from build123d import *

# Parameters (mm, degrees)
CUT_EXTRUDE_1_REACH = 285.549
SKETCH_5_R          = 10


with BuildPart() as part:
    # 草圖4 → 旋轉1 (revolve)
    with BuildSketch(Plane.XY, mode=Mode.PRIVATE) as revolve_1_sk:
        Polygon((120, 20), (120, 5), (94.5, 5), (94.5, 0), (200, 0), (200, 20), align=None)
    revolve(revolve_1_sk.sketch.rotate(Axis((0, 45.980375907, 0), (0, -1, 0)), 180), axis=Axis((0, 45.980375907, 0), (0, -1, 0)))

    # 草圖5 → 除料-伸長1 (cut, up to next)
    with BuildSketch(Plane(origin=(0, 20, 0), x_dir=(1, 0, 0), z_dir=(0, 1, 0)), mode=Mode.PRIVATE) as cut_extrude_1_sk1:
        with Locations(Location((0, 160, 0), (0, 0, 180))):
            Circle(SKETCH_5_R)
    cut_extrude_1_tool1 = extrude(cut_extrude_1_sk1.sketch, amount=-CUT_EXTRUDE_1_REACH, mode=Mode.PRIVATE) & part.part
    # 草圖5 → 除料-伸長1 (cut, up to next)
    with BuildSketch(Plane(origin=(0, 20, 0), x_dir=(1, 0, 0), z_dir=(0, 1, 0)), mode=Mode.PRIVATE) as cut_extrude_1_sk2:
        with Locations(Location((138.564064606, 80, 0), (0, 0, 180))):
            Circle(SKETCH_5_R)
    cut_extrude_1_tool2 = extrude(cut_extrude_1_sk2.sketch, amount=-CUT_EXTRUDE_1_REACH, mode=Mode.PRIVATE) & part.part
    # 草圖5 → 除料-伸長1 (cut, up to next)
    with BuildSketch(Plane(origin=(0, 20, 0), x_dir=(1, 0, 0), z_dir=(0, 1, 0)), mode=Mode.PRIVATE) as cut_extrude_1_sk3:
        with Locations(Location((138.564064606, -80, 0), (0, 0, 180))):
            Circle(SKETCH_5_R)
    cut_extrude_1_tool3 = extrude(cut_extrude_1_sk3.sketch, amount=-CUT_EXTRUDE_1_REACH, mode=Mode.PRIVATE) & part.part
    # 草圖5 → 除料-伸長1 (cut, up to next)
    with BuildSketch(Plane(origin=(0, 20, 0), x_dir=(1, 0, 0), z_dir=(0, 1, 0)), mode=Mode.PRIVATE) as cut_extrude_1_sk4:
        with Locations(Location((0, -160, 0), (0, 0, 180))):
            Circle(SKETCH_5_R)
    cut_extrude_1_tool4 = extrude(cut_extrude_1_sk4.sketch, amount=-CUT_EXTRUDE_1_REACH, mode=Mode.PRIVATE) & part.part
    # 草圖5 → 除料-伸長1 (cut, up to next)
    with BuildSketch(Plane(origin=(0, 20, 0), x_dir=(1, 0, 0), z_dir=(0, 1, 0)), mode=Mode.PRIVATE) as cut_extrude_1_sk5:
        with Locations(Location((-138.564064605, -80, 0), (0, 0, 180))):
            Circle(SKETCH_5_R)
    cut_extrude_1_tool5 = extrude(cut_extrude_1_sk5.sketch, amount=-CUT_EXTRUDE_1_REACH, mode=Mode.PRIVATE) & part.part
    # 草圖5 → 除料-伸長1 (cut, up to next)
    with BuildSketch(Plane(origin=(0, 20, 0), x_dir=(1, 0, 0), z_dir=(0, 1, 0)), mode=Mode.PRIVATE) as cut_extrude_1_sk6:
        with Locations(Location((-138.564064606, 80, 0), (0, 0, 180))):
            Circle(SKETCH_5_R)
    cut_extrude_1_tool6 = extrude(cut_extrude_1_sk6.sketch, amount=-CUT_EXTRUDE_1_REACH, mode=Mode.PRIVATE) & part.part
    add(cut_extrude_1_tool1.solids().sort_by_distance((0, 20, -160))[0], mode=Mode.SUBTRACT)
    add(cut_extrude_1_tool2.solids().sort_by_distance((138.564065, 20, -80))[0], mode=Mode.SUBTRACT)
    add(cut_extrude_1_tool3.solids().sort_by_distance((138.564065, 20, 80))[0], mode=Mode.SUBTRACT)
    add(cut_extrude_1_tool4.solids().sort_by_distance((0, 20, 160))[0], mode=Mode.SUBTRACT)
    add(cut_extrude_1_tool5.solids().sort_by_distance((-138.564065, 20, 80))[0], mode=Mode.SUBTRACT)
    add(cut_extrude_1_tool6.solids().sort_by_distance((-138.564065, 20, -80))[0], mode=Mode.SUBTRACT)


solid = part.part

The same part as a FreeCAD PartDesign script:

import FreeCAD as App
import Part
import Sketcher


def add_polygon(sketch, points):
    """Adds a closed chain of lines whose ends are joined by coincident constraints."""
    first, n = sketch.GeometryCount, len(points)
    for a, b in zip(points, points[1:] + points[:1]):
        sketch.addGeometry(Part.LineSegment(App.Vector(*a, 0), App.Vector(*b, 0)), False)
    for i in range(n):
        sketch.addConstraint(Sketcher.Constraint("Coincident", first + i, 2, first + (i + 1) % n, 1))

doc = App.newDocument("Part")
params = doc.addObject("Spreadsheet::Sheet", "Params")
for row, (alias, value) in enumerate([
    ("sketch1_width", "80 mm"),
    ("sketch1_height", "15 mm"),
    ("sketch1_height2", "5 mm"),
    ("sketch1_width2", "25.5 mm"),
    ("revolution_angle", "360 deg"),
    ("sketch2_diameter", "20 mm"),
    ("sketch3_diameter", "20 mm"),
    ("sketch4_diameter", "20 mm"),
    ("sketch5_diameter", "20 mm"),
    ("sketch6_diameter", "20 mm"),
    ("sketch7_diameter", "20 mm"),
], start=1):
    params.set(f"A{row}", alias)
    params.set(f"B{row}", "=" + value)
    params.setAlias(f"B{row}", alias)

body = doc.addObject("PartDesign::Body", "Body")

# Sketch on XY plane
sketch1 = body.newObject("Sketcher::SketchObject", "Sketch")
sketch1.AttachmentSupport = (doc.getObject("XY_Plane"), [""])
sketch1.MapMode = "FlatFace"
add_polygon(sketch1, [(120, 20), (120, 5), (94.5, 5), (94.5, 0), (200, 0), (200, 20)])  # lines 0-5
sketch1.addConstraint(Sketcher.Constraint("Vertical", 0))
sketch1.addConstraint(Sketcher.Constraint("Horizontal", 1))
sketch1.addConstraint(Sketcher.Constraint("Vertical", 2))
sketch1.addConstraint(Sketcher.Constraint("Horizontal", 3))
sketch1.addConstraint(Sketcher.Constraint("Vertical", 4))
sketch1.addConstraint(Sketcher.Constraint("Horizontal", 5))
sketch1.addConstraint(Sketcher.Constraint("PointOnObject", 2, 2, -1))
sketch1.addConstraint(Sketcher.Constraint("DistanceX", 5, 2, 5, 1, 80.0))
sketch1.addConstraint(Sketcher.Constraint("DistanceY", 0, 2, 0, 1, 15.0))
sketch1.addConstraint(Sketcher.Constraint("DistanceY", 2, 2, 2, 1, 5.0))
sketch1.addConstraint(Sketcher.Constraint("DistanceX", 1, 2, 1, 1, 25.5))
sketch1.addConstraint(Sketcher.Constraint("DistanceX", -1, 1, 0, 2, 120.0))
sketch1.setExpression("Constraints[13]", "Params.sketch1_width")
sketch1.setExpression("Constraints[14]", "Params.sketch1_height")
sketch1.setExpression("Constraints[15]", "Params.sketch1_height2")
sketch1.setExpression("Constraints[16]", "Params.sketch1_width2")
revolution = body.newObject("PartDesign::Revolution", "Revolution")
revolution.Profile = sketch1
revolution.ReferenceAxis = (sketch1, ["V_Axis"])
revolution.setExpression("Angle", "Params.revolution_angle")

# Sketch on XZ plane
sketch2 = body.newObject("Sketcher::SketchObject", "Sketch001")
sketch2.AttachmentSupport = (doc.getObject("XZ_Plane"), [""])
sketch2.MapMode = "FlatFace"
sketch2.AttachmentOffset = App.Placement(App.Vector(0, 0, -20), App.Rotation())
sketch2.addGeometry(Part.Circle(App.Vector(0, -160, 0), App.Vector(0, 0, 1), 10), False)
sketch2.addConstraint(Sketcher.Constraint("PointOnObject", 0, 3, -2))
sketch2.addConstraint(Sketcher.Constraint("Diameter", 0, 20.0))
sketch2.addConstraint(Sketcher.Constraint("DistanceY", 0, 3, -1, 1, 160.0))
sketch2.setExpression("Constraints[1]", "Params.sketch2_diameter")
pocket1 = body.newObject("PartDesign::Pocket", "Pocket")
pocket1.Profile = sketch2
pocket1.Type = "UpToFirst"
pocket1.Reversed = True

# Sketch on XZ plane
sketch3 = body.newObject("Sketcher::SketchObject", "Sketch002")
sketch3.AttachmentSupport = (doc.getObject("XZ_Plane"), [""])
sketch3.MapMode = "FlatFace"
sketch3.AttachmentOffset = App.Placement(App.Vector(0, 0, -20), App.Rotation())
sketch3.addGeometry(Part.Circle(App.Vector(138.564065, -80, 0), App.Vector(0, 0, 1), 10), False)
sketch3.addConstraint(Sketcher.Constraint("Diameter", 0, 20.0))
sketch3.addConstraint(Sketcher.Constraint("DistanceY", 0, 3, -1, 1, 80.0))
sketch3.addConstraint(Sketcher.Constraint("DistanceX", -1, 1, 0, 3, 138.564065))
sketch3.setExpression("Constraints[0]", "Params.sketch3_diameter")
pocket2 = body.newObject("PartDesign::Pocket", "Pocket001")
pocket2.Profile = sketch3
pocket2.Type = "UpToFirst"
pocket2.Reversed = True

# Sketch on XZ plane
sketch4 = body.newObject("Sketcher::SketchObject", "Sketch003")
sketch4.AttachmentSupport = (doc.getObject("XZ_Plane"), [""])
sketch4.MapMode = "FlatFace"
sketch4.AttachmentOffset = App.Placement(App.Vector(0, 0, -20), App.Rotation())
sketch4.addGeometry(Part.Circle(App.Vector(138.564065, 80, 0), App.Vector(0, 0, 1), 10), False)
sketch4.addConstraint(Sketcher.Constraint("Diameter", 0, 20.0))
sketch4.addConstraint(Sketcher.Constraint("DistanceY", -1, 1, 0, 3, 80.0))
sketch4.addConstraint(Sketcher.Constraint("DistanceX", -1, 1, 0, 3, 138.564065))
sketch4.setExpression("Constraints[0]", "Params.sketch4_diameter")
pocket3 = body.newObject("PartDesign::Pocket", "Pocket002")
pocket3.Profile = sketch4
pocket3.Type = "UpToFirst"
pocket3.Reversed = True

# Sketch on XZ plane
sketch5 = body.newObject("Sketcher::SketchObject", "Sketch004")
sketch5.AttachmentSupport = (doc.getObject("XZ_Plane"), [""])
sketch5.MapMode = "FlatFace"
sketch5.AttachmentOffset = App.Placement(App.Vector(0, 0, -20), App.Rotation())
sketch5.addGeometry(Part.Circle(App.Vector(0, 160, 0), App.Vector(0, 0, 1), 10), False)
sketch5.addConstraint(Sketcher.Constraint("PointOnObject", 0, 3, -2))
sketch5.addConstraint(Sketcher.Constraint("Diameter", 0, 20.0))
sketch5.addConstraint(Sketcher.Constraint("DistanceY", -1, 1, 0, 3, 160.0))
sketch5.setExpression("Constraints[1]", "Params.sketch5_diameter")
pocket4 = body.newObject("PartDesign::Pocket", "Pocket003")
pocket4.Profile = sketch5
pocket4.Type = "UpToFirst"
pocket4.Reversed = True

# Sketch on XZ plane
sketch6 = body.newObject("Sketcher::SketchObject", "Sketch005")
sketch6.AttachmentSupport = (doc.getObject("XZ_Plane"), [""])
sketch6.MapMode = "FlatFace"
sketch6.AttachmentOffset = App.Placement(App.Vector(0, 0, -20), App.Rotation())
sketch6.addGeometry(Part.Circle(App.Vector(-138.564065, 80, 0), App.Vector(0, 0, 1), 10), False)
sketch6.addConstraint(Sketcher.Constraint("Diameter", 0, 20.0))
sketch6.addConstraint(Sketcher.Constraint("DistanceY", -1, 1, 0, 3, 80.0))
sketch6.addConstraint(Sketcher.Constraint("DistanceX", 0, 3, -1, 1, 138.564065))
sketch6.setExpression("Constraints[0]", "Params.sketch6_diameter")
pocket5 = body.newObject("PartDesign::Pocket", "Pocket004")
pocket5.Profile = sketch6
pocket5.Type = "UpToFirst"
pocket5.Reversed = True

# Sketch on XZ plane
sketch7 = body.newObject("Sketcher::SketchObject", "Sketch006")
sketch7.AttachmentSupport = (doc.getObject("XZ_Plane"), [""])
sketch7.MapMode = "FlatFace"
sketch7.AttachmentOffset = App.Placement(App.Vector(0, 0, -20), App.Rotation())
sketch7.addGeometry(Part.Circle(App.Vector(-138.564065, -80, 0), App.Vector(0, 0, 1), 10), False)
sketch7.addConstraint(Sketcher.Constraint("Diameter", 0, 20.0))
sketch7.addConstraint(Sketcher.Constraint("DistanceY", 0, 3, -1, 1, 80.0))
sketch7.addConstraint(Sketcher.Constraint("DistanceX", 0, 3, -1, 1, 138.564065))
sketch7.setExpression("Constraints[0]", "Params.sketch7_diameter")
pocket6 = body.newObject("PartDesign::Pocket", "Pocket005")
pocket6.Profile = sketch7
pocket6.Type = "UpToFirst"
pocket6.Reversed = True

doc.recompute()
